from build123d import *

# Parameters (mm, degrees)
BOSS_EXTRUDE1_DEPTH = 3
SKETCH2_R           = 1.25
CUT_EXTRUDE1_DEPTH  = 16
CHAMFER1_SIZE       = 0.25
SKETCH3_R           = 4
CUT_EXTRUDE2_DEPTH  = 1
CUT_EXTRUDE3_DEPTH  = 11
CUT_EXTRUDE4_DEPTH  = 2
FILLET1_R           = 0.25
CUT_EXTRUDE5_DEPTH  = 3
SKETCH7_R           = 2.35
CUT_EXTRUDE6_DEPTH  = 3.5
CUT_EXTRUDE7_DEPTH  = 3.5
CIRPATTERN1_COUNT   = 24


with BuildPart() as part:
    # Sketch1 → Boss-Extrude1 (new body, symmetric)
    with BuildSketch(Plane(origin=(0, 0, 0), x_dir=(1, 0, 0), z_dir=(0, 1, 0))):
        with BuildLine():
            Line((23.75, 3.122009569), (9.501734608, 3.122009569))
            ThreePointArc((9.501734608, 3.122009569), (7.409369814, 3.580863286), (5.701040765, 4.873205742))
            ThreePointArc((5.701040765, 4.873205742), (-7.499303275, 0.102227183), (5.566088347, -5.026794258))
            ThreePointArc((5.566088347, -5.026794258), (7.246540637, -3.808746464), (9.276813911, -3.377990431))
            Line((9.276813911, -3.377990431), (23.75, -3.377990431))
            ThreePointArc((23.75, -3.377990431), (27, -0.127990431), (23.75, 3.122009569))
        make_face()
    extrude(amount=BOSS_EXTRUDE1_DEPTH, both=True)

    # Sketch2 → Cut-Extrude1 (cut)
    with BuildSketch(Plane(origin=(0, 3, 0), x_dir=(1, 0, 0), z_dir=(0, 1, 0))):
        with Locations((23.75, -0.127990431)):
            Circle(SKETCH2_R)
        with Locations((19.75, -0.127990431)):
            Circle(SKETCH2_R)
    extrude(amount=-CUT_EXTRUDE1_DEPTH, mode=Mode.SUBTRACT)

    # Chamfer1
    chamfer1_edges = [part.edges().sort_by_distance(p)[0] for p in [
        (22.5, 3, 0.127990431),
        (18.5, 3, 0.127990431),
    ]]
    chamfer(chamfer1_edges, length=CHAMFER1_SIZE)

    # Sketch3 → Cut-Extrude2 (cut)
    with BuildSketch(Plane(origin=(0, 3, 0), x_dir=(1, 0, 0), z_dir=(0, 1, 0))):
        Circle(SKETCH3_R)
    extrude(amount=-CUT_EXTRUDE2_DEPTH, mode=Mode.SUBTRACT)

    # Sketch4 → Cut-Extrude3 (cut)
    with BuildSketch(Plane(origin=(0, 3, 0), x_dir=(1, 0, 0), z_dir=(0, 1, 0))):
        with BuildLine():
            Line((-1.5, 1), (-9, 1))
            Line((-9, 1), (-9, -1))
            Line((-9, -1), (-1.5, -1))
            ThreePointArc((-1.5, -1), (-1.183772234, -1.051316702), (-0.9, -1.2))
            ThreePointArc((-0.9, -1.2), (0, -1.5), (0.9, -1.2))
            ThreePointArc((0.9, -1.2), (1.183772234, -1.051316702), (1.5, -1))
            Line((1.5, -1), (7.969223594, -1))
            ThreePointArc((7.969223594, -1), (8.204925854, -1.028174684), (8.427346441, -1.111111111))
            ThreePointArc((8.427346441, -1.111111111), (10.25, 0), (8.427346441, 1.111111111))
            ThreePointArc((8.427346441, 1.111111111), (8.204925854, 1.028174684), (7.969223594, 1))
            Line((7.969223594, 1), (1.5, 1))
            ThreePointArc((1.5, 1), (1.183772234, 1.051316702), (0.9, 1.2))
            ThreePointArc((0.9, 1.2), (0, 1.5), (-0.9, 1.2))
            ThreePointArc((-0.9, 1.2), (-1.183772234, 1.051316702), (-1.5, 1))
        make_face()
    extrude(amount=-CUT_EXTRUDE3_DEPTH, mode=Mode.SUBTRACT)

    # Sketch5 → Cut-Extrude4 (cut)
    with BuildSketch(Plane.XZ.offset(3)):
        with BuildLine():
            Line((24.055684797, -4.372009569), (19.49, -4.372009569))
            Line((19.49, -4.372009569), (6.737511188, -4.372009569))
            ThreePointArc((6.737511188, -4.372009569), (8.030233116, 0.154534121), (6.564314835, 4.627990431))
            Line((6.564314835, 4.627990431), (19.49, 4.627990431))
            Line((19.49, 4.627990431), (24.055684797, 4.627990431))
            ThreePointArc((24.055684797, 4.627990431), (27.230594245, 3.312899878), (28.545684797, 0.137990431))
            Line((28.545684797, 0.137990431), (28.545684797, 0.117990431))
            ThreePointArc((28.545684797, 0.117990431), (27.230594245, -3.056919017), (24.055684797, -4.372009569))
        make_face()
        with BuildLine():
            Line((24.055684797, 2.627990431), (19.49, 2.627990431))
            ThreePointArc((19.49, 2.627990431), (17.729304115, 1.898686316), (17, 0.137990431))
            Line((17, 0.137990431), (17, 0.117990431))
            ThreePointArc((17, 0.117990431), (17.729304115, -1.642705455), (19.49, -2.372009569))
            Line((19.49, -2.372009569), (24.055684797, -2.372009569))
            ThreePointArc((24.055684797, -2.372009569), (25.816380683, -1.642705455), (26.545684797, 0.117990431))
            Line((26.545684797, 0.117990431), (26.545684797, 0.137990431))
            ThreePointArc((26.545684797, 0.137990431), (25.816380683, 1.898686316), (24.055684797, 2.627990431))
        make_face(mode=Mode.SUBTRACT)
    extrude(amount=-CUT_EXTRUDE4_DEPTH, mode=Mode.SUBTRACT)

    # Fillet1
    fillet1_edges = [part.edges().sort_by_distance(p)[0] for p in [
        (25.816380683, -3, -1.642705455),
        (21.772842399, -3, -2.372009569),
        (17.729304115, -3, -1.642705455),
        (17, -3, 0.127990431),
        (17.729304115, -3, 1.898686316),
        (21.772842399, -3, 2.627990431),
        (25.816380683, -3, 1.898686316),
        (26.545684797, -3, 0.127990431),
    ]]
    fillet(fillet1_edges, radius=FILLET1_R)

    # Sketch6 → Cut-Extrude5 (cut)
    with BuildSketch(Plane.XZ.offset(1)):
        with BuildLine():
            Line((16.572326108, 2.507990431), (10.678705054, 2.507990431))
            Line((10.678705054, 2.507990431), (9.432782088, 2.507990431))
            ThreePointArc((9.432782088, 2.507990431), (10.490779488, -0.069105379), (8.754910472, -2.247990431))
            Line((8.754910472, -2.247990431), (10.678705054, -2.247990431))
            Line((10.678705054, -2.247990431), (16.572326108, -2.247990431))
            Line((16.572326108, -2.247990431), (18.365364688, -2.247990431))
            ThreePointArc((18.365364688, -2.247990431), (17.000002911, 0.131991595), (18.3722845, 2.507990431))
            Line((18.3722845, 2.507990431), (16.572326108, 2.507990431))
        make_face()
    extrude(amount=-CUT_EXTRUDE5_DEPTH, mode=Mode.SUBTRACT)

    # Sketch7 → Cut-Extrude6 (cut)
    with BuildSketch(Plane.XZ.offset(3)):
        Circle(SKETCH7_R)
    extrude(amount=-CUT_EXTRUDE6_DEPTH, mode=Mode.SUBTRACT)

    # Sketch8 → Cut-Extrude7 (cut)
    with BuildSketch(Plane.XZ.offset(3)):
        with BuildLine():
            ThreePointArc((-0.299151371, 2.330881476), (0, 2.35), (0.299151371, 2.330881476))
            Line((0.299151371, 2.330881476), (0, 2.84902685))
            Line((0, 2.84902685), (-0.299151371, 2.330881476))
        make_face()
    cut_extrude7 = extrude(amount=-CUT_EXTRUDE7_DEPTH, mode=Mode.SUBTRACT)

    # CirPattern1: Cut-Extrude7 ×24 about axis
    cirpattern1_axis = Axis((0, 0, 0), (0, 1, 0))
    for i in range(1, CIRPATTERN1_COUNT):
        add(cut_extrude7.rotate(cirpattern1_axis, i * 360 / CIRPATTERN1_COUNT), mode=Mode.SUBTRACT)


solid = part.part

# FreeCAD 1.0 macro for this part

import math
import FreeCAD as App
import Part
import Sketcher
from FreeCAD import Vector
Q = App.Units.Quantity


def edges_at(feature, points):
    """Names of the edges that pass closest to the given points."""
    edges = feature.Shape.Edges
    near = lambda p: min(range(len(edges)), key=lambda i: edges[i].distToShape(Part.Vertex(*p))[0])
    return sorted({f"Edge{near(p) + 1}" for p in points})

doc = App.newDocument("Part")
body = doc.addObject("PartDesign::Body", "Body")

# Sketch on XZ plane
sketch1 = body.newObject("Sketcher::SketchObject", "Sketch")
sketch1.AttachmentSupport = (doc.getObject("XZ_Plane"), [""])
sketch1.MapMode = "FlatFace"
sketch1.addGeometry([
    Part.LineSegment(Vector(23.75, -3.12201, 0), Vector(9.501735, -3.12201, 0)),  # 0
    Part.ArcOfCircle(Part.Circle(Vector(9.501735, -8.12201, 0), Vector(0, 0, 1), 5), math.radians(90), math.radians(139.476433)),  # 1
    Part.ArcOfCircle(Part.Circle(Vector(0, 0, 0), Vector(0, 0, 1), 7.5), math.radians(42.085532), math.radians(319.476433)),  # 2
    Part.ArcOfCircle(Part.Circle(Vector(9.276814, 8.37799, 0), Vector(0, 0, 1), 5), math.radians(-137.914468), math.radians(-90)),  # 3
    Part.LineSegment(Vector(9.276814, 3.37799, 0), Vector(23.75, 3.37799, 0)),  # 4
    Part.ArcOfCircle(Part.Circle(Vector(23.75, 0.12799, 0), Vector(0, 0, 1), 3.25), math.radians(-90), math.radians(90)),  # 5
], False)
sketch1.addConstraint([
    Sketcher.Constraint("Tangent", 0, 2, 1, 1),
    Sketcher.Constraint("Tangent", 1, 2, 2, 2),
    Sketcher.Constraint("Tangent", 2, 1, 3, 1),
    Sketcher.Constraint("Tangent", 3, 2, 4, 1),
    Sketcher.Constraint("Tangent", 4, 2, 5, 2),
    Sketcher.Constraint("Tangent", 5, 1, 0, 1),
    Sketcher.Constraint("Horizontal", 0),
    Sketcher.Constraint("Horizontal", 4),
    Sketcher.Constraint("Coincident", 2, 3, -1, 1),
    Sketcher.Constraint("Equal", 1, 3),
    Sketcher.Constraint("Radius", 1, 5.0),
    Sketcher.Constraint("Radius", 2, 7.5),
    Sketcher.Constraint("Radius", 5, 3.25),
    Sketcher.Constraint("DistanceX", -1, 1, 5, 3, 23.75),
    Sketcher.Constraint("DistanceX", 0, 2, 0, 1, 14.248265),
])
pad1 = body.newObject("PartDesign::Pad", "Pad")
pad1.Profile = sketch1
pad1.Length = 6
pad1.Midplane = True

# Sketch on XZ plane
sketch2 = body.newObject("Sketcher::SketchObject", "Sketch001")
sketch2.AttachmentSupport = (doc.getObject("XZ_Plane"), [""])
sketch2.MapMode = "FlatFace"
sketch2.AttachmentOffset = App.Placement(Vector(0, 0, -3), App.Rotation())
sketch2.addGeometry([
    Part.Circle(Vector(23.75, 0.12799, 0), Vector(0, 0, 1), 1.25),
    Part.Circle(Vector(19.75, 0.12799, 0), Vector(0, 0, 1), 1.25),
], False)
sketch2.addConstraint([
    Sketcher.Constraint("Equal", 0, 1),
    Sketcher.Constraint("Horizontal", 0, 3, 1, 3),
    Sketcher.Constraint("Diameter", 0, 2.5),
    Sketcher.Constraint("DistanceX", 1, 3, 0, 3, 4.0),
    Sketcher.Constraint("DistanceX", -1, 1, 0, 3, 23.75),
    Sketcher.Constraint("DistanceY", -1, 1, 0, 3, 0.12799),
])
pocket1 = body.newObject("PartDesign::Pocket", "Pocket")
pocket1.Profile = sketch2
pocket1.Length = 16
pocket1.Reversed = True
doc.recompute()

chamfer = body.newObject("PartDesign::Chamfer", "Chamfer")
chamfer.Base = (pocket1, edges_at(pocket1, [(22.5, 3, 0.128), (18.5, 3, 0.128)]))
chamfer.Size = 0.25

# Sketch on XZ plane
sketch3 = body.newObject("Sketcher::SketchObject", "Sketch002")
sketch3.AttachmentSupport = (doc.getObject("XZ_Plane"), [""])
sketch3.MapMode = "FlatFace"
sketch3.AttachmentOffset = App.Placement(Vector(0, 0, -3), App.Rotation())
sketch3.addGeometry(Part.Circle(Vector(0, 0, 0), Vector(0, 0, 1), 4), False)
sketch3.addConstraint([
    Sketcher.Constraint("Coincident", 0, 3, -1, 1),
    Sketcher.Constraint("Diameter", 0, 8.0),
])
pocket2 = body.newObject("PartDesign::Pocket", "Pocket001")
pocket2.Profile = sketch3
pocket2.Length = 1
pocket2.Reversed = True

# Sketch on XZ plane
sketch4 = body.newObject("Sketcher::SketchObject", "Sketch003")
sketch4.AttachmentSupport = (doc.getObject("XZ_Plane"), [""])
sketch4.MapMode = "FlatFace"
sketch4.AttachmentOffset = App.Placement(Vector(0, 0, -3), App.Rotation())
sketch4.addGeometry([
    Part.LineSegment(Vector(-1.5, -1, 0), Vector(-9, -1, 0)),  # 0
    Part.LineSegment(Vector(-9, -1, 0), Vector(-9, 1, 0)),  # 1
    Part.LineSegment(Vector(-9, 1, 0), Vector(-1.5, 1, 0)),  # 2
    Part.ArcOfCircle(Part.Circle(Vector(-1.5, 2, 0), Vector(0, 0, 1), 1), math.radians(-90), math.radians(-53.130102)),  # 3
    Part.ArcOfCircle(Part.Circle(Vector(0, 0, 0), Vector(0, 0, 1), 1.5), math.radians(53.130102), math.radians(126.869898)),  # 4
    Part.ArcOfCircle(Part.Circle(Vector(1.5, 2, 0), Vector(0, 0, 1), 1), math.radians(-126.869898), math.radians(-90)),  # 5
    Part.LineSegment(Vector(1.5, 1, 0), Vector(7.969224, 1, 0)),  # 6
    Part.ArcOfCircle(Part.Circle(Vector(7.969224, 2, 0), Vector(0, 0, 1), 1), math.radians(-90), math.radians(-62.733956)),  # 7
    Part.ArcOfCircle(Part.Circle(Vector(9, 0, 0), Vector(0, 0, 1), 1.25), math.radians(-117.266044), math.radians(117.266044)),  # 8
    Part.ArcOfCircle(Part.Circle(Vector(7.969224, -2, 0), Vector(0, 0, 1), 1), math.radians(62.733956), math.radians(90)),  # 9
    Part.LineSegment(Vector(7.969224, -1, 0), Vector(1.5, -1, 0)),  # 10
    Part.ArcOfCircle(Part.Circle(Vector(1.5, -2, 0), Vector(0, 0, 1), 1), math.radians(90), math.radians(126.869898)),  # 11
    Part.ArcOfCircle(Part.Circle(Vector(0, 0, 0), Vector(0, 0, 1), 1.5), math.radians(-126.869898), math.radians(-53.130102)),  # 12
    Part.ArcOfCircle(Part.Circle(Vector(-1.5, -2, 0), Vector(0, 0, 1), 1), math.radians(53.130102), math.radians(90)),  # 13
], False)
sketch4.addConstraint([
    Sketcher.Constraint("Coincident", 0, 2, 1, 1),
    Sketcher.Constraint("Coincident", 1, 2, 2, 1),
    Sketcher.Constraint("Tangent", 2, 2, 3, 1),
    Sketcher.Constraint("Tangent", 3, 2, 4, 2),
    Sketcher.Constraint("Tangent", 4, 1, 5, 1),
    Sketcher.Constraint("Tangent", 5, 2, 6, 1),
    Sketcher.Constraint("Tangent", 6, 2, 7, 1),
    Sketcher.Constraint("Tangent", 7, 2, 8, 2),
    Sketcher.Constraint("Tangent", 8, 1, 9, 1),
    Sketcher.Constraint("Tangent", 9, 2, 10, 1),
    Sketcher.Constraint("Tangent", 10, 2, 11, 1),
    Sketcher.Constraint("Tangent", 11, 2, 12, 2),
    Sketcher.Constraint("Tangent", 12, 1, 13, 1),
    Sketcher.Constraint("Tangent", 13, 2, 0, 1),
    Sketcher.Constraint("Horizontal", 0),
    Sketcher.Constraint("Vertical", 1),
    Sketcher.Constraint("Horizontal", 2),
    Sketcher.Constraint("Horizontal", 6),
    Sketcher.Constraint("Horizontal", 10),
    Sketcher.Constraint("Coincident", 4, 3, -1, 1),
    Sketcher.Constraint("Coincident", 12, 3, -1, 1),
    Sketcher.Constraint("Equal", 3, 5),
    Sketcher.Constraint("Equal", 5, 7),
    Sketcher.Constraint("Equal", 7, 9),
    Sketcher.Constraint("Equal", 9, 11),
    Sketcher.Constraint("Equal", 4, 12),
    Sketcher.Constraint("Equal", 11, 13),
    Sketcher.Constraint("Symmetric", 7, 3, 9, 3, -1),
    Sketcher.Constraint("Horizontal", 3, 3, 5, 3),
    Sketcher.Constraint("Horizontal", 11, 3, 13, 3),
    Sketcher.Constraint("Radius", 3, 1.0),
    Sketcher.Constraint("Radius", 4, 1.5),
    Sketcher.Constraint("DistanceY", 1, 1, 1, 2, 2.0),
    Sketcher.Constraint("Radius", 8, 1.25),
    Sketcher.Constraint("DistanceX", 0, 2, 0, 1, 7.5),
    Sketcher.Constraint("DistanceX", -1, 1, 8, 3, 9.0),
])
pocket3 = body.newObject("PartDesign::Pocket", "Pocket002")
pocket3.Profile = sketch4
pocket3.Length = 11
pocket3.Reversed = True

# Sketch on XZ plane
sketch5 = body.newObject("Sketcher::SketchObject", "Sketch004")
sketch5.AttachmentSupport = (doc.getObject("XZ_Plane"), [""])
sketch5.MapMode = "FlatFace"
sketch5.AttachmentOffset = App.Placement(Vector(0, 0, 3), App.Rotation())
sketch5.addGeometry([
    Part.LineSegment(Vector(6.737511, -4.37201, 0), Vector(24.055685, -4.37201, 0)),  # 0
    Part.ArcOfCircle(Part.Circle(Vector(24.055685, 0.11799, 0), Vector(0, 0, 1), 4.49), math.radians(-90), math.radians(0)),  # 1
    Part.LineSegment(Vector(28.545685, 0.11799, 0), Vector(28.545685, 0.13799, 0)),  # 2
    Part.ArcOfCircle(Part.Circle(Vector(24.055685, 0.13799, 0), Vector(0, 0, 1), 4.49), math.radians(0), math.radians(90)),  # 3
    Part.LineSegment(Vector(24.055685, 4.62799, 0), Vector(6.564315, 4.62799, 0)),  # 4
    Part.ArcOfCircle(Part.Circle(Vector(0, 0, 0), Vector(0, 0, 1), 8.03172), math.radians(-32.97977), math.radians(35.184702)),  # 5
    Part.ArcOfCircle(Part.Circle(Vector(24.055685, 0.13799, 0), Vector(0, 0, 1), 2.49), math.radians(0), math.radians(90)),  # 6
    Part.LineSegment(Vector(26.545685, 0.13799, 0), Vector(26.545685, 0.11799, 0)),  # 7
    Part.ArcOfCircle(Part.Circle(Vector(24.055685, 0.11799, 0), Vector(0, 0, 1), 2.49), math.radians(-90), math.radians(0)),  # 8
    Part.LineSegment(Vector(24.055685, -2.37201, 0), Vector(19.49, -2.37201, 0)),  # 9
    Part.ArcOfCircle(Part.Circle(Vector(19.49, 0.11799, 0), Vector(0, 0, 1), 2.49), math.radians(180), math.radians(270)),  # 10
    Part.LineSegment(Vector(17, 0.11799, 0), Vector(17, 0.13799, 0)),  # 11
    Part.ArcOfCircle(Part.Circle(Vector(19.49, 0.13799, 0), Vector(0, 0, 1), 2.49), math.radians(90), math.radians(180)),  # 12
    Part.LineSegment(Vector(19.49, 2.62799, 0), Vector(24.055685, 2.62799, 0)),  # 13
], False)
sketch5.addConstraint([
    Sketcher.Constraint("Tangent", 0, 2, 1, 1),
    Sketcher.Constraint("Tangent", 1, 2, 2, 1),
    Sketcher.Constraint("Tangent", 2, 2, 3, 1),
    Sketcher.Constraint("Tangent", 3, 2, 4, 1),
    Sketcher.Constraint("Coincident", 4, 2, 5, 2),
    Sketcher.Constraint("Coincident", 5, 1, 0, 1),
    Sketcher.Constraint("Tangent", 6, 1, 7, 1),
    Sketcher.Constraint("Tangent", 7, 2, 8, 2),
    Sketcher.Constraint("Tangent", 8, 1, 9, 1),
    Sketcher.Constraint("Tangent", 9, 2, 10, 2),
    Sketcher.Constraint("Tangent", 10, 1, 11, 1),
    Sketcher.Constraint("Tangent", 11, 2, 12, 2),
    Sketcher.Constraint("Tangent", 12, 1, 13, 1),
    Sketcher.Constraint("Tangent", 13, 2, 6, 2),
    Sketcher.Constraint("Horizontal", 0),
    Sketcher.Constraint("Vertical", 2),
    Sketcher.Constraint("Horizontal", 4),
    Sketcher.Constraint("Vertical", 7),
    Sketcher.Constraint("Horizontal", 9),
    Sketcher.Constraint("Vertical", 11),
    Sketcher.Constraint("Horizontal", 13),
    Sketcher.Constraint("Coincident", 5, 3, -1, 1),
    Sketcher.Constraint("Coincident", 6, 3, 3, 3),
    Sketcher.Constraint("Coincident", 8, 3, 1, 3),
    Sketcher.Constraint("Equal", 1, 3),
    Sketcher.Constraint("Equal", 8, 10),
    Sketcher.Constraint("Equal", 10, 12),
    Sketcher.Constraint("Radius", 1, 4.49),
    Sketcher.Constraint("Radius", 6, 2.49),
    Sketcher.Constraint("DistanceX", -1, 1, 10, 1, 17.0),
    Sketcher.Constraint("DistanceY", 5, 1, 4, 2, 9.0),
    Sketcher.Constraint("Radius", 5, 8.03172),
    Sketcher.Constraint("DistanceX", 4, 2, 4, 1, 17.49137),
    Sketcher.Constraint("DistanceX", 0, 1, 0, 2, 17.318174),
])
pocket4 = body.newObject("PartDesign::Pocket", "Pocket003")
pocket4.Profile = sketch5
pocket4.Length = 2
doc.recompute()

fillet = body.newObject("PartDesign::Fillet", "Fillet")
fillet.Base = (pocket4, edges_at(pocket4, [
    (25.816, -3, -1.643),
    (21.773, -3, -2.372),
    (17.729, -3, -1.643),
    (17, -3, 0.128),
    (17.729, -3, 1.899),
    (21.773, -3, 2.628),
    (25.816, -3, 1.899),
    (26.546, -3, 0.128),
]))
fillet.Radius = 0.25

# Sketch on XZ plane
sketch6 = body.newObject("Sketcher::SketchObject", "Sketch005")
sketch6.AttachmentSupport = (doc.getObject("XZ_Plane"), [""])
sketch6.MapMode = "FlatFace"
sketch6.AttachmentOffset = App.Placement(Vector(0, 0, 1), App.Rotation())
sketch6.addGeometry([
    Part.ArcOfCircle(Part.Circle(Vector(7.768294, 0.318931, 0), Vector(0, 0, 1), 2.75), math.radians(-68.975345), math.radians(52.751841)),
    Part.LineSegment(Vector(8.75491, -2.24799, 0), Vector(18.365365, -2.24799, 0)),
    Part.ArcOfCircle(Part.Circle(Vector(19.75, 0.12799, 0), Vector(0, 0, 1), 2.75), math.radians(120.065351), math.radians(239.767922)),
    Part.LineSegment(Vector(18.372284, 2.50799, 0), Vector(9.432782, 2.50799, 0)),
], False)
sketch6.addConstraint([
    Sketcher.Constraint("Coincident", 0, 1, 1, 1),
    Sketcher.Constraint("Coincident", 1, 2, 2, 2),
    Sketcher.Constraint("Coincident", 2, 1, 3, 1),
    Sketcher.Constraint("Coincident", 3, 2, 0, 2),
    Sketcher.Constraint("Horizontal", 1),
    Sketcher.Constraint("Horizontal", 3),
    Sketcher.Constraint("Equal", 0, 2),
    Sketcher.Constraint("Radius", 0, 2.75),
    Sketcher.Constraint("DistanceX", -1, 1, 2, 3, 19.75),
    Sketcher.Constraint("DistanceY", 2, 3, 2, 1, 2.38),
    Sketcher.Constraint("DistanceX", 1, 1, 1, 2, 9.610454),
    Sketcher.Constraint("DistanceX", 3, 2, 3, 1, 8.939502),
    Sketcher.Constraint("DistanceY", -1, 1, 0, 3, 0.318931),
    Sketcher.Constraint("DistanceY", -1, 1, 2, 3, 0.12799),
])
pocket5 = body.newObject("PartDesign::Pocket", "Pocket004")
pocket5.Profile = sketch6
pocket5.Length = 3

# Sketch on XZ plane
sketch7 = body.newObject("Sketcher::SketchObject", "Sketch006")
sketch7.AttachmentSupport = (doc.getObject("XZ_Plane"), [""])
sketch7.MapMode = "FlatFace"
sketch7.AttachmentOffset = App.Placement(Vector(0, 0, 3), App.Rotation())
sketch7.addGeometry(Part.Circle(Vector(0, 0, 0), Vector(0, 0, 1), 2.35), False)
sketch7.addConstraint([
    Sketcher.Constraint("Coincident", 0, 3, -1, 1),
    Sketcher.Constraint("Diameter", 0, 4.7),
])
pocket6 = body.newObject("PartDesign::Pocket", "Pocket005")
pocket6.Profile = sketch7
pocket6.Length = 3.5

# Sketch on XZ plane
sketch8 = body.newObject("Sketcher::SketchObject", "Sketch007")
sketch8.AttachmentSupport = (doc.getObject("XZ_Plane"), [""])
sketch8.MapMode = "FlatFace"
sketch8.AttachmentOffset = App.Placement(Vector(0, 0, 3), App.Rotation())
sketch8.addGeometry([
    Part.ArcOfCircle(Part.Circle(Vector(0, 0, 0), Vector(0, 0, 1), 2.35), math.radians(82.686492), math.radians(97.313508)),
    Part.LineSegment(Vector(0.299151, 2.330881, 0), Vector(0, 2.849027, 0)),
    Part.LineSegment(Vector(0, 2.849027, 0), Vector(-0.299151, 2.330881, 0)),
], False)
sketch8.addConstraint([
    Sketcher.Constraint("Coincident", 0, 1, 1, 1),
    Sketcher.Constraint("Coincident", 1, 2, 2, 1),
    Sketcher.Constraint("Coincident", 2, 2, 0, 2),
    Sketcher.Constraint("Coincident", 0, 3, -1, 1),
    Sketcher.Constraint("PointOnObject", 1, 2, -2),
    Sketcher.Constraint("Horizontal", 0, 1, 2, 2),
    Sketcher.Constraint("Angle", 1, Q("120 deg")),
    Sketcher.Constraint("Radius", 0, 2.35),
    Sketcher.Constraint("DistanceX", -1, 1, 0, 1, 0.299151),
])
pocket7 = body.newObject("PartDesign::Pocket", "Pocket006")
pocket7.Profile = sketch8
pocket7.Length = 3.5
doc.recompute()

polarpattern = body.newObject("PartDesign::PolarPattern", "PolarPattern")
polarpattern.Originals = [pocket7]
polarpattern.Axis = (doc.getObject("Y_Axis"), [""])
polarpattern.Angle = 360
polarpattern.Occurrences = 24
body.Tip = polarpattern

doc.recompute()
